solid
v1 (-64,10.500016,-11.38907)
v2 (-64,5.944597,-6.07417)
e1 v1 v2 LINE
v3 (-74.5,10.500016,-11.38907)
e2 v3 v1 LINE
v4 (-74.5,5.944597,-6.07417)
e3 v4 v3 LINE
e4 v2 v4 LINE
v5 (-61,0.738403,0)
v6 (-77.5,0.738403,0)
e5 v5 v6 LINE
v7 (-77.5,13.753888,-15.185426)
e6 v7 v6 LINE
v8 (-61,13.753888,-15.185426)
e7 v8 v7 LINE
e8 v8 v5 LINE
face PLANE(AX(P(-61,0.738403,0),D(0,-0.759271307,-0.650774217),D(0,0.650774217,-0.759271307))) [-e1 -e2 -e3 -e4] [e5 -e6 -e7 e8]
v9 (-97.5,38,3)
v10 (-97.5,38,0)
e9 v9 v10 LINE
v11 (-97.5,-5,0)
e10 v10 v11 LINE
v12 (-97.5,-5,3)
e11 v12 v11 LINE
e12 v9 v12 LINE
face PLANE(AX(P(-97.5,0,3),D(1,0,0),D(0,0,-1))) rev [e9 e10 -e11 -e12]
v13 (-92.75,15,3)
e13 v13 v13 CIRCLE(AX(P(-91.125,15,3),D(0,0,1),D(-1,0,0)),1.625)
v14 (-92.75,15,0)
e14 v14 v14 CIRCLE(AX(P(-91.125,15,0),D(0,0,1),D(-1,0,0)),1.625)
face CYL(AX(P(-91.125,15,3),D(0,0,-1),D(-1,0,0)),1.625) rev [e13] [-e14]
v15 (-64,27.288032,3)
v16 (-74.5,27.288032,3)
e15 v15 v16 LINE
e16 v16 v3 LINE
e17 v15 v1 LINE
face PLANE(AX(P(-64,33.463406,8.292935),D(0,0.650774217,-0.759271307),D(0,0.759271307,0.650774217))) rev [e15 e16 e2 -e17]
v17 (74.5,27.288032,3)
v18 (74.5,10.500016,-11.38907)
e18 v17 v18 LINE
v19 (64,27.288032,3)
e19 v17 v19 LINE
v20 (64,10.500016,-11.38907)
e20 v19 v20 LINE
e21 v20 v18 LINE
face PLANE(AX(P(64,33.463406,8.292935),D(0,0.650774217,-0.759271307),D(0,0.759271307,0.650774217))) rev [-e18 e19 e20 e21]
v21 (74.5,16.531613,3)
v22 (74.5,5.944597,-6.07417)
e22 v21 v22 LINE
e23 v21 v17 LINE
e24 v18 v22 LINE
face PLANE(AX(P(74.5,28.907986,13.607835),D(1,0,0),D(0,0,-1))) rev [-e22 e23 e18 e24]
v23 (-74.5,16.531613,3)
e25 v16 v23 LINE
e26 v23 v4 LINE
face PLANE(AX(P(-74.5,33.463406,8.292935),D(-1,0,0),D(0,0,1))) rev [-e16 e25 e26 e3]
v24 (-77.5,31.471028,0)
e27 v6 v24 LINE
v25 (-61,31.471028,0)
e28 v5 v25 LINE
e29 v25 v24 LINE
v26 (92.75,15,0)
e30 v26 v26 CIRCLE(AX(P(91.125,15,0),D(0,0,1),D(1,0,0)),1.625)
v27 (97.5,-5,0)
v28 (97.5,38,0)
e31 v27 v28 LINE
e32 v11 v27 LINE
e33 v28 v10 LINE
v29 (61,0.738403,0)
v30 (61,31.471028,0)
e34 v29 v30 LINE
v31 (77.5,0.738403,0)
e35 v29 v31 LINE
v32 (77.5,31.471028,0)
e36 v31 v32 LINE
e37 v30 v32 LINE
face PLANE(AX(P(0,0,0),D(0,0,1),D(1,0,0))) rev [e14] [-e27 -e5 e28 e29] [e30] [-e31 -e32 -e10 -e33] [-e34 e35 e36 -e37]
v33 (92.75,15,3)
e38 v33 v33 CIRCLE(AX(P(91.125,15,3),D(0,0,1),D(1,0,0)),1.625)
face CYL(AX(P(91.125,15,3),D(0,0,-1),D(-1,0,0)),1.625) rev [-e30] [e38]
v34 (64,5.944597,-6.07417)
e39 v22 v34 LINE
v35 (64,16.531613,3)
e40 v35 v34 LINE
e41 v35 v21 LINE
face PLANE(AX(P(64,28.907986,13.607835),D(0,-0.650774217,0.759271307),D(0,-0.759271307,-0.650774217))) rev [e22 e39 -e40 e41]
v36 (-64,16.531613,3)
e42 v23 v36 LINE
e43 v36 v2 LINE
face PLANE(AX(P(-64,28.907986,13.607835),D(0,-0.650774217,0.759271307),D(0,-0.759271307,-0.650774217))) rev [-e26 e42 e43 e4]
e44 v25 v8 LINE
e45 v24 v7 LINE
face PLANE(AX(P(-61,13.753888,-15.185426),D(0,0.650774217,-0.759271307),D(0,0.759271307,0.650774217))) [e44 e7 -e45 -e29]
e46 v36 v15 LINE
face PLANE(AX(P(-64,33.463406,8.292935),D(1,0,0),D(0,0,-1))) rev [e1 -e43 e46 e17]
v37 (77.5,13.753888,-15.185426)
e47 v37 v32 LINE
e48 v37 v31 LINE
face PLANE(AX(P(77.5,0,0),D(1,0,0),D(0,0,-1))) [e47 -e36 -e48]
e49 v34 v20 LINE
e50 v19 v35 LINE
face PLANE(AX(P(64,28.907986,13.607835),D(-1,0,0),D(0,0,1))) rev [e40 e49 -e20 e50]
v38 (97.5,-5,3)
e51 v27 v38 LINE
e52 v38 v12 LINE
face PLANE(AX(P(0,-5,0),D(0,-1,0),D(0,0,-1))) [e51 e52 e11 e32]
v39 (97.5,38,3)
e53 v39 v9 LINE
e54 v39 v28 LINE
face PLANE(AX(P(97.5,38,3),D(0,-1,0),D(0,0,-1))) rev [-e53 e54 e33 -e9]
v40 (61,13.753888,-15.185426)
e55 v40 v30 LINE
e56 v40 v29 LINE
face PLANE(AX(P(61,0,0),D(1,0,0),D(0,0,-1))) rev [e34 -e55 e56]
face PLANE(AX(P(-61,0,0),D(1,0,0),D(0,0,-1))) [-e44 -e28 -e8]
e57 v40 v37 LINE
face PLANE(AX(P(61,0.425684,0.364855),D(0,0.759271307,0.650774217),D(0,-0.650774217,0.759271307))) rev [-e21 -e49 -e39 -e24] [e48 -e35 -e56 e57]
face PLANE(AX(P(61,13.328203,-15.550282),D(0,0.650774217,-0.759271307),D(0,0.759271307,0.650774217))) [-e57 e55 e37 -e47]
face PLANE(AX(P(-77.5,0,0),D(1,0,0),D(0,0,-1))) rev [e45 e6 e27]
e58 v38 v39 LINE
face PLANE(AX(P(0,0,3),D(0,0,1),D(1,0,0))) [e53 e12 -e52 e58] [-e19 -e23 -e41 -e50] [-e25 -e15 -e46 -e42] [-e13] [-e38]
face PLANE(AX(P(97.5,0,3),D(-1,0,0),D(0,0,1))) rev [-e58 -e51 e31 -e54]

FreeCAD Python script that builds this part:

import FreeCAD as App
import Part
import Sketcher
Q = App.Units.Quantity

doc = App.newDocument("Part")
body = doc.addObject("PartDesign::Body", "Body")

# Sketch on XY plane
sketch1 = doc.addObject("Sketcher::SketchObject", "Sketch")
body.addObject(sketch1)
sketch1.AttachmentSupport = (doc.XY_Plane, [""])
sketch1.MapMode = "FlatFace"
sketch1.addGeometry([
    Part.LineSegment(App.Vector(-97.5, 38, 0), App.Vector(-97.5, 0, 0)),  # 0
    Part.LineSegment(App.Vector(-97.5, 0, 0), App.Vector(97.5, 0, 0)),  # 1
    Part.LineSegment(App.Vector(97.5, 0, 0), App.Vector(97.5, 38, 0)),  # 2
    Part.LineSegment(App.Vector(97.5, 38, 0), App.Vector(-97.5, 38, 0)),  # 3
    Part.Circle(App.Vector(-91.1, 15, 0), App.Vector(0, 0, 1), 1.6),  # 4
    Part.Circle(App.Vector(91.1, 15, 0), App.Vector(0, 0, 1), 1.6),  # 5
], False)
sketch1.addConstraint([
    Sketcher.Constraint("Coincident", 0, 2, 1, 1),
    Sketcher.Constraint("Coincident", 1, 2, 2, 1),
    Sketcher.Constraint("Coincident", 2, 2, 3, 1),
    Sketcher.Constraint("Coincident", 3, 2, 0, 1),
    Sketcher.Constraint("Vertical", 0),
    Sketcher.Constraint("Horizontal", 1),
    Sketcher.Constraint("Vertical", 2),
    Sketcher.Constraint("Horizontal", 3),
    Sketcher.Constraint("Equal", 4, 5),
    Sketcher.Constraint("Symmetric", 0, 2, 1, 2, -1, 1),
    Sketcher.Constraint("Symmetric", 4, 3, 5, 3, -2),
    Sketcher.Constraint("Diameter", 4, 3.25),
    Sketcher.Constraint("DistanceX", 1, 1, 1, 2, 195.0),
    Sketcher.Constraint("DistanceY", 0, 2, 0, 1, 38.0),
    Sketcher.Constraint("DistanceY", -1, 1, 4, 3, 15.0),
    Sketcher.Constraint("DistanceX", 4, 3, 5, 3, 182.25),
])
pad1 = doc.addObject("PartDesign::Pad", "Pad")
body.addObject(pad1)
pad1.Profile = sketch1
pad1.Length = 3

# Sketch on YZ plane
sketch2 = doc.addObject("Sketcher::SketchObject", "Sketch001")
body.addObject(sketch2)
sketch2.AttachmentSupport = (doc.YZ_Plane, [""])
sketch2.MapMode = "FlatFace"
sketch2.AttachmentOffset = App.Placement(App.Vector(0, 0, 77.5), App.Rotation())
sketch2.addGeometry([
    Part.LineSegment(App.Vector(3.7, -3.4, 0), App.Vector(13.8, -15.2, 0)),
    Part.LineSegment(App.Vector(13.8, -15.2, 0), App.Vector(31.5, 0, 0)),
    Part.LineSegment(App.Vector(31.5, 0, 0), App.Vector(0.7, 0, 0)),
    Part.LineSegment(App.Vector(0.7, 0, 0), App.Vector(3.7, -3.4, 0)),
], False)
sketch2.addConstraint([
    Sketcher.Constraint("Coincident", 0, 2, 1, 1),
    Sketcher.Constraint("Coincident", 1, 2, 2, 1),
    Sketcher.Constraint("Coincident", 2, 2, 3, 1),
    Sketcher.Constraint("Coincident", 3, 2, 0, 1),
    Sketcher.Constraint("Horizontal", 2),
    Sketcher.Constraint("PointOnObject", 1, 2, -1),
    Sketcher.Constraint("Perpendicular", 0, 1),
    Sketcher.Constraint("Perpendicular", 1, 3),
    Sketcher.Constraint("Angle", 0, Q("-49.4 deg")),
    Sketcher.Constraint("Distance", 1, 23.3344),
    Sketcher.Constraint("DistanceX", -1, 1, 1, 2, 31.471028),
    Sketcher.Constraint("DistanceX", 3, 2, 0, 2, 10.075991),
])
pad2 = doc.addObject("PartDesign::Pad", "Pad001")
body.addObject(pad2)
pad2.Profile = sketch2
pad2.Length = 16.5
pad2.Reversed = True

# Sketch on an angled plane
sketch3 = doc.addObject("Sketcher::SketchObject", "Sketch002")
body.addObject(sketch3)
sketch3.Placement = App.Placement(App.Vector(0, 0.425684, 0.364855), App.Rotation(App.Vector(1, 0, 0), App.Vector(0, -0.650774217, 0.759271307), App.Vector(0, -0.759271307, -0.650774217), "ZXY"))
sketch3.addGeometry([
    Part.LineSegment(App.Vector(64, -8, 0), App.Vector(64, -15, 0)),
    Part.LineSegment(App.Vector(64, -15, 0), App.Vector(74, -15, 0)),
    Part.LineSegment(App.Vector(74, -15, 0), App.Vector(74, -8, 0)),
    Part.LineSegment(App.Vector(74, -8, 0), App.Vector(64, -8, 0)),
], False)
sketch3.addConstraint([
    Sketcher.Constraint("Coincident", 0, 2, 1, 1),
    Sketcher.Constraint("Coincident", 1, 2, 2, 1),
    Sketcher.Constraint("Coincident", 2, 2, 3, 1),
    Sketcher.Constraint("Coincident", 3, 2, 0, 1),
    Sketcher.Constraint("Vertical", 0),
    Sketcher.Constraint("Horizontal", 1),
    Sketcher.Constraint("Vertical", 2),
    Sketcher.Constraint("Horizontal", 3),
    Sketcher.Constraint("DistanceY", 0, 2, 0, 1, 7.0),
    Sketcher.Constraint("DistanceX", 1, 1, 1, 2, 10.5),
    Sketcher.Constraint("DistanceX", -1, 1, 0, 2, 64.0),
    Sketcher.Constraint("DistanceY", 0, 2, -1, 1, 15.480534),
])
pocket1 = doc.addObject("PartDesign::Pocket", "Pocket")
body.addObject(pocket1)
pocket1.Profile = sketch3
pocket1.Type = "ThroughAll"

# Sketch on YZ plane
sketch4 = doc.addObject("Sketcher::SketchObject", "Sketch003")
body.addObject(sketch4)
sketch4.AttachmentSupport = (doc.YZ_Plane, [""])
sketch4.MapMode = "FlatFace"
sketch4.AttachmentOffset = App.Placement(App.Vector(0, 0, -77.5), App.Rotation())
sketch4.addGeometry([
    Part.LineSegment(App.Vector(14, -15, 0), App.Vector(1, 0, 0)),
    Part.LineSegment(App.Vector(1, 0, 0), App.Vector(31, 0, 0)),
    Part.LineSegment(App.Vector(31, 0, 0), App.Vector(14, -15, 0)),
], False)
sketch4.addConstraint([
    Sketcher.Constraint("Coincident", 0, 2, 1, 1),
    Sketcher.Constraint("Coincident", 1, 2, 2, 1),
    Sketcher.Constraint("Coincident", 2, 2, 0, 1),
    Sketcher.Constraint("Horizontal", 1),
    Sketcher.Constraint("PointOnObject", 0, 2, -1),
    Sketcher.Constraint("Perpendicular", 0, 2),
    Sketcher.Constraint("Distance", 0, 20.0),
    Sketcher.Constraint("Angle", 0, Q("130.6 deg")),
    Sketcher.Constraint("DistanceX", -1, 1, 1, 2, 31.471028),
])
pad3 = doc.addObject("PartDesign::Pad", "Pad002")
body.addObject(pad3)
pad3.Profile = sketch4
pad3.Length = 16.5

# Sketch on an angled plane
sketch5 = doc.addObject("Sketcher::SketchObject", "Sketch004")
body.addObject(sketch5)
sketch5.Placement = App.Placement(App.Vector(0, 0.425684, 0.364855), App.Rotation(App.Vector(1, 0, 0), App.Vector(0, -0.650774217, 0.759271307), App.Vector(0, -0.759271307, -0.650774217), "ZXY"))
sketch5.addGeometry([
    Part.LineSegment(App.Vector(-74, -8, 0), App.Vector(-74, -15, 0)),
    Part.LineSegment(App.Vector(-74, -15, 0), App.Vector(-64, -15, 0)),
    Part.LineSegment(App.Vector(-64, -15, 0), App.Vector(-64, -8, 0)),
    Part.LineSegment(App.Vector(-64, -8, 0), App.Vector(-74, -8, 0)),
], False)
sketch5.addConstraint([
    Sketcher.Constraint("Coincident", 0, 2, 1, 1),
    Sketcher.Constraint("Coincident", 1, 2, 2, 1),
    Sketcher.Constraint("Coincident", 2, 2, 3, 1),
    Sketcher.Constraint("Coincident", 3, 2, 0, 1),
    Sketcher.Constraint("Vertical", 0),
    Sketcher.Constraint("Horizontal", 1),
    Sketcher.Constraint("Vertical", 2),
    Sketcher.Constraint("Horizontal", 3),
    Sketcher.Constraint("DistanceY", 0, 2, 0, 1, 7.0),
    Sketcher.Constraint("DistanceX", 1, 1, 1, 2, 10.5),
    Sketcher.Constraint("DistanceX", 1, 2, -1, 1, 64.0),
    Sketcher.Constraint("DistanceY", 0, 2, -1, 1, 15.480534),
])
pocket2 = doc.addObject("PartDesign::Pocket", "Pocket001")
body.addObject(pocket2)
pocket2.Profile = sketch5
pocket2.Type = "ThroughAll"

# Sketch on YZ plane
sketch6 = doc.addObject("Sketcher::SketchObject", "Sketch005")
body.addObject(sketch6)
sketch6.AttachmentSupport = (doc.YZ_Plane, [""])
sketch6.MapMode = "FlatFace"
sketch6.AttachmentOffset = App.Placement(App.Vector(0, 0, -22.5), App.Rotation())
sketch6.addGeometry([
    Part.LineSegment(App.Vector(1, 0, 0), App.Vector(14, -15, 0)),
    Part.LineSegment(App.Vector(14, -15, 0), App.Vector(31, 0, 0)),
    Part.LineSegment(App.Vector(31, 0, 0), App.Vector(1, 0, 0)),
], False)
sketch6.addConstraint([
    Sketcher.Constraint("Coincident", 0, 2, 1, 1),
    Sketcher.Constraint("Coincident", 1, 2, 2, 1),
    Sketcher.Constraint("Coincident", 2, 2, 0, 1),
    Sketcher.Constraint("Horizontal", 2),
    Sketcher.Constraint("PointOnObject", 1, 2, -1),
    Sketcher.Constraint("Perpendicular", 0, 1),
    Sketcher.Constraint("Distance", 0, 20.0),
    Sketcher.Constraint("Angle", 0, Q("-49.4 deg")),
    Sketcher.Constraint("DistanceX", -1, 1, 1, 2, 31.471028),
])
pad4 = doc.addObject("PartDesign::Pad", "Pad003")
body.addObject(pad4)
pad4.Profile = sketch6
pad4.Length = 45

# Sketch on an angled plane
sketch7 = doc.addObject("Sketcher::SketchObject", "Sketch006")
body.addObject(sketch7)
sketch7.Placement = App.Placement(App.Vector(0, 0.425684, 0.364855), App.Rotation(App.Vector(1, 0, 0), App.Vector(0, -0.650774217, 0.759271307), App.Vector(0, -0.759271307, -0.650774217), "ZXY"))
sketch7.addGeometry([
    Part.Circle(App.Vector(-13, -10, 0), App.Vector(0, 0, 1), 8),
    Part.Circle(App.Vector(13, -10, 0), App.Vector(0, 0, 1), 8),
], False)
sketch7.addConstraint([
    Sketcher.Constraint("Equal", 0, 1),
    Sketcher.Constraint("Horizontal", 0, 3, 1, 3),
    Sketcher.Constraint("Diameter", 0, 16.5),
    Sketcher.Constraint("DistanceX", 0, 3, -1, 1, 12.92),
    Sketcher.Constraint("DistanceX", -1, 1, 1, 3, 12.93),
    Sketcher.Constraint("DistanceY", 0, 3, -1, 1, 10.480534),
])
pocket3 = doc.addObject("PartDesign::Pocket", "Pocket002")
body.addObject(pocket3)
pocket3.Profile = sketch7
pocket3.Type = "ThroughAll"

# Sketch on XZ plane
sketch8 = doc.addObject("Sketcher::SketchObject", "Sketch007")
body.addObject(sketch8)
sketch8.AttachmentSupport = (doc.XZ_Plane, [""])
sketch8.MapMode = "FlatFace"
sketch8.addGeometry([
    Part.LineSegment(App.Vector(-97.5, 3, 0), App.Vector(-97.5, 0, 0)),
    Part.LineSegment(App.Vector(-97.5, 0, 0), App.Vector(97.5, 0, 0)),
    Part.LineSegment(App.Vector(97.5, 0, 0), App.Vector(97.5, 3, 0)),
    Part.LineSegment(App.Vector(97.5, 3, 0), App.Vector(-97.5, 3, 0)),
], False)
sketch8.addConstraint([
    Sketcher.Constraint("Coincident", 0, 2, 1, 1),
    Sketcher.Constraint("Coincident", 1, 2, 2, 1),
    Sketcher.Constraint("Coincident", 2, 2, 3, 1),
    Sketcher.Constraint("Coincident", 3, 2, 0, 1),
    Sketcher.Constraint("Vertical", 0),
    Sketcher.Constraint("Horizontal", 1),
    Sketcher.Constraint("Vertical", 2),
    Sketcher.Constraint("Horizontal", 3),
    Sketcher.Constraint("Symmetric", 0, 2, 1, 2, -1, 1),
    Sketcher.Constraint("DistanceX", 1, 1, 1, 2, 195.0),
    Sketcher.Constraint("DistanceY", 0, 2, 0, 1, 3.0),
])
pad5 = doc.addObject("PartDesign::Pad", "Pad004")
body.addObject(pad5)
pad5.Profile = sketch8
pad5.Length = 5

# Sketch on YZ plane
sketch9 = doc.addObject("Sketcher::SketchObject", "Sketch008")
body.addObject(sketch9)
sketch9.AttachmentSupport = (doc.YZ_Plane, [""])
sketch9.MapMode = "FlatFace"
sketch9.AttachmentOffset = App.Placement(App.Vector(0, 0, -22.5), App.Rotation())
sketch9.addGeometry([
    Part.LineSegment(App.Vector(14, -15, 0), App.Vector(1, 0, 0)),
    Part.LineSegment(App.Vector(1, 0, 0), App.Vector(31, 0, 0)),
    Part.LineSegment(App.Vector(31, 0, 0), App.Vector(14, -15, 0)),
], False)
sketch9.addConstraint([
    Sketcher.Constraint("Coincident", 0, 2, 1, 1),
    Sketcher.Constraint("Coincident", 1, 2, 2, 1),
    Sketcher.Constraint("Coincident", 2, 2, 0, 1),
    Sketcher.Constraint("Horizontal", 1),
    Sketcher.Constraint("PointOnObject", 0, 2, -1),
    Sketcher.Constraint("Perpendicular", 0, 2),
    Sketcher.Constraint("Distance", 0, 20.0),
    Sketcher.Constraint("Angle", 0, Q("130.6 deg")),
    Sketcher.Constraint("DistanceX", -1, 1, 1, 2, 31.471028),
])
pocket4 = doc.addObject("PartDesign::Pocket", "Pocket003")
body.addObject(pocket4)
pocket4.Profile = sketch9
pocket4.Length = 45
pocket4.Reversed = True

# Sketch on XY plane
sketch10 = doc.addObject("Sketcher::SketchObject", "Sketch009")
body.addObject(sketch10)
sketch10.AttachmentSupport = (doc.XY_Plane, [""])
sketch10.MapMode = "FlatFace"
sketch10.AttachmentOffset = App.Placement(App.Vector(0, 0, 3), App.Rotation())
sketch10.addGeometry([
    Part.LineSegment(App.Vector(-29, 35, 0), App.Vector(-29, 2, 0)),
    Part.LineSegment(App.Vector(-29, 2, 0), App.Vector(27, 2, 0)),
    Part.LineSegment(App.Vector(27, 2, 0), App.Vector(27, 35, 0)),
    Part.LineSegment(App.Vector(27, 35, 0), App.Vector(-29, 35, 0)),
], False)
sketch10.addConstraint([
    Sketcher.Constraint("Coincident", 0, 2, 1, 1),
    Sketcher.Constraint("Coincident", 1, 2, 2, 1),
    Sketcher.Constraint("Coincident", 2, 2, 3, 1),
    Sketcher.Constraint("Coincident", 3, 2, 0, 1),
    Sketcher.Constraint("Vertical", 0),
    Sketcher.Constraint("Horizontal", 1),
    Sketcher.Constraint("Vertical", 2),
    Sketcher.Constraint("Horizontal", 3),
    Sketcher.Constraint("DistanceX", 1, 1, 1, 2, 55.675324),
    Sketcher.Constraint("DistanceY", 0, 2, 0, 1, 32.604385),
    Sketcher.Constraint("DistanceY", -1, 1, 0, 2, 2.156391),
    Sketcher.Constraint("DistanceX", -1, 1, 1, 2, 26.596071),
])
pad6 = doc.addObject("PartDesign::Pad", "Pad005")
body.addObject(pad6)
pad6.Profile = sketch10
pad6.Length = 3
pad6.Reversed = True

doc.recompute()
